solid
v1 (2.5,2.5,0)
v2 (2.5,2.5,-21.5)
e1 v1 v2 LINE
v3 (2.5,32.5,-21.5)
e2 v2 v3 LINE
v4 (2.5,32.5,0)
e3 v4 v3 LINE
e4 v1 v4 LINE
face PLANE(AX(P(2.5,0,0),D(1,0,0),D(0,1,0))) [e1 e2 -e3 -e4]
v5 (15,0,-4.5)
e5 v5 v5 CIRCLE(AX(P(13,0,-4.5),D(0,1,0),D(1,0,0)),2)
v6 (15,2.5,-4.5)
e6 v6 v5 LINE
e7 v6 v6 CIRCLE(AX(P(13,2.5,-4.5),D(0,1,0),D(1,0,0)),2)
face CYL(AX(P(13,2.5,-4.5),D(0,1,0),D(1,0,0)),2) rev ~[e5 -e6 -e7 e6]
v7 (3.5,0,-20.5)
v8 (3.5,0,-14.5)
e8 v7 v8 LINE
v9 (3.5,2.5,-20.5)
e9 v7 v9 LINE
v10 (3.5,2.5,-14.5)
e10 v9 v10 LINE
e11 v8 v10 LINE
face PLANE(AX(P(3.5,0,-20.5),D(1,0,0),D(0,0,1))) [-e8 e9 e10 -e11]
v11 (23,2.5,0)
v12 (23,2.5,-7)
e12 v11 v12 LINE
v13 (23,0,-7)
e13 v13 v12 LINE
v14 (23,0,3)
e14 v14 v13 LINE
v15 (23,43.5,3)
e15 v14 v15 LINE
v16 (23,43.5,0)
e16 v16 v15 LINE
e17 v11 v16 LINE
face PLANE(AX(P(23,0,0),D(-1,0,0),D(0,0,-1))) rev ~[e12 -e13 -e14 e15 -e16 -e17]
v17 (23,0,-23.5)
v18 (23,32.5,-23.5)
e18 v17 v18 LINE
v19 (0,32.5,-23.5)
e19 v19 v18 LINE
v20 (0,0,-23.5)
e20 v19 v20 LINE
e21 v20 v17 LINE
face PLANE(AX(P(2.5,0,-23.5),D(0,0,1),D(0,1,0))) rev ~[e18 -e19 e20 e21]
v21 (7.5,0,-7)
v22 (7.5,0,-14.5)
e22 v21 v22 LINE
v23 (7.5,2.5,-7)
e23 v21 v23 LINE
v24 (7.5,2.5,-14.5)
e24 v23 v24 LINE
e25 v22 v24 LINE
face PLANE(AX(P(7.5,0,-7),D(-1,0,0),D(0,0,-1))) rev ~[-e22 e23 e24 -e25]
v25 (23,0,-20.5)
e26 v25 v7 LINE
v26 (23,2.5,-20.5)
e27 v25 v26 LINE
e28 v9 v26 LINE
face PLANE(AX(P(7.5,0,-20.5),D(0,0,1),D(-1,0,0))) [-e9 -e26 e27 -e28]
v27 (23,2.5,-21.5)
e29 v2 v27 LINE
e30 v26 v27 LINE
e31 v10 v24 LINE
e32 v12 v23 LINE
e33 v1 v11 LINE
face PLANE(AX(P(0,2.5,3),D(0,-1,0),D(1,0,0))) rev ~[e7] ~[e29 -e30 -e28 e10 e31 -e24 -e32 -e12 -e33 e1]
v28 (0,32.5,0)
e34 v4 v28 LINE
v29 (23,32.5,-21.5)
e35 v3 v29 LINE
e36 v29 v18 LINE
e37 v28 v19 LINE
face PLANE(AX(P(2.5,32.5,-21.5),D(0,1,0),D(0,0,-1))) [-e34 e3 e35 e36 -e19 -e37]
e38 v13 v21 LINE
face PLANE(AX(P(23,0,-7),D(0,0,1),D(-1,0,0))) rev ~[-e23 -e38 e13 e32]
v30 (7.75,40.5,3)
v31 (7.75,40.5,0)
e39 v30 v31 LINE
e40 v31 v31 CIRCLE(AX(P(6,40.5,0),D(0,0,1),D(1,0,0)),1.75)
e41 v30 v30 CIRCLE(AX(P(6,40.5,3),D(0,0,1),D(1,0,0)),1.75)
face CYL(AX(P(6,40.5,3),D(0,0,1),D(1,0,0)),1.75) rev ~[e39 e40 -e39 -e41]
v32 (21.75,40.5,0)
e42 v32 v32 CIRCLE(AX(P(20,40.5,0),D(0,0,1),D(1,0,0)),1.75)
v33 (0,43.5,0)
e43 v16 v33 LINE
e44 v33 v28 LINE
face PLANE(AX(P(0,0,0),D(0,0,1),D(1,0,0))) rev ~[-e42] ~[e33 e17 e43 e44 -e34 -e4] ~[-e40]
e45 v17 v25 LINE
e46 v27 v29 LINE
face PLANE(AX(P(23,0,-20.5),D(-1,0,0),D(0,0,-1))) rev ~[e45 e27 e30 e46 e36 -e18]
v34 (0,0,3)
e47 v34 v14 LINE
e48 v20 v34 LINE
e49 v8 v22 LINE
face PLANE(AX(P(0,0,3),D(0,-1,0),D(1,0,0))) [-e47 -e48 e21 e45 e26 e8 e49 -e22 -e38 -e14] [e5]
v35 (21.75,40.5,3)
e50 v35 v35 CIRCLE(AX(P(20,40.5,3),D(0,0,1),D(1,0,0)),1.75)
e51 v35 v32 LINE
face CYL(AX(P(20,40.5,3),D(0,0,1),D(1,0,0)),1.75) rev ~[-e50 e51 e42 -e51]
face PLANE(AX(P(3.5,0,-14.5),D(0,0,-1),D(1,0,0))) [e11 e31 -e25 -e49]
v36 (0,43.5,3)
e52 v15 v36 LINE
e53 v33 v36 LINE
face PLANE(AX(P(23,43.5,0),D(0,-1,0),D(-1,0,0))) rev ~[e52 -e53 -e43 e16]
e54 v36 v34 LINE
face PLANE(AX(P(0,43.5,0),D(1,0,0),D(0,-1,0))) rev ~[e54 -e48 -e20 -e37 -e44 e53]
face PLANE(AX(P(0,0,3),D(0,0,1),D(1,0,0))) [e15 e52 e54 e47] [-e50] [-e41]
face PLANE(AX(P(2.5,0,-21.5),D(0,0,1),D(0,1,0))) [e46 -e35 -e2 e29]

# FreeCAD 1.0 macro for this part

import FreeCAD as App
import Part
import Sketcher


def add_polygon(sketch, points):
    """Adds a closed chain of lines whose ends are joined by coincident constraints."""
    first, n = sketch.GeometryCount, len(points)
    for a, b in zip(points, points[1:] + points[:1]):
        sketch.addGeometry(Part.LineSegment(App.Vector(*a, 0), App.Vector(*b, 0)), False)
    for i in range(n):
        sketch.addConstraint(Sketcher.Constraint("Coincident", first + i, 2, first + (i + 1) % n, 1))

doc = App.newDocument("Part")
params = doc.addObject("Spreadsheet::Sheet", "Params")
for row, (alias, value) in enumerate([
    ("sketch1_width", "23 mm"),
    ("sketch1_height", "43.5 mm"),
    ("pad1_length", "3 mm"),
    ("sketch2_width", "2.5 mm"),
    ("sketch2_height", "32.5 mm"),
    ("pad2_length", "23.5 mm"),
    ("sketch3_height", "2 mm"),
    ("sketch3_width", "32.5 mm"),
    ("pad3_length", "20.5 mm"),
    ("sketch4_height", "1 mm"),
    ("sketch4_height2", "7 mm"),
    ("sketch4_width", "20.5 mm"),
    ("sketch4_height3", "21.5 mm"),
    ("pad4_length", "2.5 mm"),
    ("sketch5_diameter", "4 mm"),
    ("pocket1_length", "2.5 mm"),
    ("sketch6_diameter", "3.5 mm"),
    ("pocket2_length", "3 mm"),
    ("sketch7_width", "4 mm"),
    ("sketch7_height", "6 mm"),
    ("pocket3_length", "2.5 mm"),
], start=1):
    params.set(f"A{row}", alias)
    params.set(f"B{row}", "=" + value)
    params.setAlias(f"B{row}", alias)

body = doc.addObject("PartDesign::Body", "Body")

# Sketch on XY plane
sketch1 = body.newObject("Sketcher::SketchObject", "Sketch")
sketch1.AttachmentSupport = (doc.getObject("XY_Plane"), [""])
sketch1.MapMode = "FlatFace"
add_polygon(sketch1, [(0, 44), (0, 0), (23, 0), (23, 44)])  # lines 0-3
sketch1.addConstraint([
    Sketcher.Constraint("Vertical", 0),
    Sketcher.Constraint("Horizontal", 1),
    Sketcher.Constraint("Vertical", 2),
    Sketcher.Constraint("Horizontal", 3),
    Sketcher.Constraint("Coincident", 0, 2, -1, 1),
    Sketcher.Constraint("DistanceX", 1, 1, 1, 2, 23.0),
    Sketcher.Constraint("DistanceY", 0, 2, 0, 1, 43.5),
])
sketch1.setExpression("Constraints[9]", "Params.sketch1_width")
sketch1.setExpression("Constraints[10]", "Params.sketch1_height")
pad1 = body.newObject("PartDesign::Pad", "Pad")
pad1.Profile = sketch1
pad1.setExpression("Length", "Params.pad1_length")

# Sketch on XY plane
sketch2 = body.newObject("Sketcher::SketchObject", "Sketch001")
sketch2.AttachmentSupport = (doc.getObject("XY_Plane"), [""])
sketch2.MapMode = "FlatFace"
add_polygon(sketch2, [(2.5, 0), (0, 0), (0, 32.5), (2.5, 32.5)])  # lines 0-3
sketch2.addConstraint([
    Sketcher.Constraint("Horizontal", 0),
    Sketcher.Constraint("Vertical", 1),
    Sketcher.Constraint("Horizontal", 2),
    Sketcher.Constraint("Vertical", 3),
    Sketcher.Constraint("Coincident", 0, 2, -1, 1),
    Sketcher.Constraint("DistanceX", 0, 2, 0, 1, 2.5),
    Sketcher.Constraint("DistanceY", 1, 1, 1, 2, 32.5),
])
sketch2.setExpression("Constraints[9]", "Params.sketch2_width")
sketch2.setExpression("Constraints[10]", "Params.sketch2_height")
pad2 = body.newObject("PartDesign::Pad", "Pad001")
pad2.Profile = sketch2
pad2.setExpression("Length", "Params.pad2_length")
pad2.Reversed = True

# Sketch on YZ plane
sketch3 = body.newObject("Sketcher::SketchObject", "Sketch002")
sketch3.AttachmentSupport = (doc.getObject("YZ_Plane"), [""])
sketch3.MapMode = "FlatFace"
sketch3.AttachmentOffset = App.Placement(App.Vector(0, 0, 2.5), App.Rotation())
add_polygon(sketch3, [(0, -21.5), (0, -23.5), (32.5, -23.5), (32.5, -21.5)])  # lines 0-3
sketch3.addConstraint([
    Sketcher.Constraint("Vertical", 0),
    Sketcher.Constraint("Horizontal", 1),
    Sketcher.Constraint("Vertical", 2),
    Sketcher.Constraint("Horizontal", 3),
    Sketcher.Constraint("PointOnObject", 0, 2, -2),
    Sketcher.Constraint("DistanceY", 0, 2, 0, 1, 2.0),
    Sketcher.Constraint("DistanceX", 1, 1, 1, 2, 32.5),
    Sketcher.Constraint("DistanceY", 0, 2, -1, 1, 23.5),
])
sketch3.setExpression("Constraints[9]", "Params.sketch3_height")
sketch3.setExpression("Constraints[10]", "Params.sketch3_width")
pad3 = body.newObject("PartDesign::Pad", "Pad002")
pad3.Profile = sketch3
pad3.setExpression("Length", "Params.pad3_length")

# Sketch on XZ plane
sketch4 = body.newObject("Sketcher::SketchObject", "Sketch003")
sketch4.AttachmentSupport = (doc.getObject("XZ_Plane"), [""])
sketch4.MapMode = "FlatFace"
add_polygon(sketch4, [(23, 0), (2.5, 0), (2.5, -21.5), (23, -21.5), (23, -20.5), (7.5, -20.5), (7.5, -7), (23, -7)])  # lines 0-7
sketch4.addConstraint([
    Sketcher.Constraint("Horizontal", 0),
    Sketcher.Constraint("Vertical", 1),
    Sketcher.Constraint("Horizontal", 2),
    Sketcher.Constraint("Vertical", 3),
    Sketcher.Constraint("Horizontal", 4),
    Sketcher.Constraint("Vertical", 5),
    Sketcher.Constraint("Horizontal", 6),
    Sketcher.Constraint("Vertical", 7),
    Sketcher.Constraint("PointOnObject", 0, 2, -1),
    Sketcher.Constraint("Vertical", 3, 2, 6, 2),
    Sketcher.Constraint("DistanceY", 3, 1, 3, 2, 1.0),
    Sketcher.Constraint("DistanceY", 7, 1, 7, 2, 7.0),
    Sketcher.Constraint("DistanceX", 1, 2, 4, 2, 5.0),
    Sketcher.Constraint("DistanceX", 0, 2, 0, 1, 20.5),
    Sketcher.Constraint("DistanceY", 1, 2, 1, 1, 21.5),
    Sketcher.Constraint("DistanceX", -1, 1, 2, 2, 23.0),
])
sketch4.setExpression("Constraints[18]", "Params.sketch4_height")
sketch4.setExpression("Constraints[19]", "Params.sketch4_height2")
sketch4.setExpression("Constraints[21]", "Params.sketch4_width")
sketch4.setExpression("Constraints[22]", "Params.sketch4_height3")
pad4 = body.newObject("PartDesign::Pad", "Pad003")
pad4.Profile = sketch4
pad4.setExpression("Length", "Params.pad4_length")
pad4.Reversed = True

# Sketch on XZ plane
sketch5 = body.newObject("Sketcher::SketchObject", "Sketch004")
sketch5.AttachmentSupport = (doc.getObject("XZ_Plane"), [""])
sketch5.MapMode = "FlatFace"
sketch5.AttachmentOffset = App.Placement(App.Vector(0, 0, -2.5), App.Rotation())
sketch5.addGeometry(Part.Circle(App.Vector(13, -4.5, 0), App.Vector(0, 0, 1), 2), False)
sketch5.addConstraint([
    Sketcher.Constraint("Diameter", 0, 4.0),
    Sketcher.Constraint("DistanceY", 0, 3, -1, 1, 4.5),
    Sketcher.Constraint("DistanceX", -1, 1, 0, 3, 13.0),
])
sketch5.setExpression("Constraints[0]", "Params.sketch5_diameter")
pocket1 = body.newObject("PartDesign::Pocket", "Pocket")
pocket1.Profile = sketch5
pocket1.setExpression("Length", "Params.pocket1_length")
pocket1.Reversed = True

# Sketch on XY plane
sketch6 = body.newObject("Sketcher::SketchObject", "Sketch005")
sketch6.AttachmentSupport = (doc.getObject("XY_Plane"), [""])
sketch6.MapMode = "FlatFace"
sketch6.AttachmentOffset = App.Placement(App.Vector(0, 0, 3), App.Rotation())
sketch6.addGeometry([
    Part.Circle(App.Vector(6, 40.5, 0), App.Vector(0, 0, 1), 1.8),
    Part.Circle(App.Vector(20, 40.5, 0), App.Vector(0, 0, 1), 1.8),
], False)
sketch6.addConstraint([
    Sketcher.Constraint("Equal", 0, 1),
    Sketcher.Constraint("Horizontal", 0, 3, 1, 3),
    Sketcher.Constraint("Diameter", 0, 3.5),
    Sketcher.Constraint("DistanceX", 0, 3, 1, 3, 14.0),
    Sketcher.Constraint("DistanceY", -1, 1, 0, 3, 40.5),
    Sketcher.Constraint("DistanceX", -1, 1, 0, 3, 6.0),
])
sketch6.setExpression("Constraints[2]", "Params.sketch6_diameter")
pocket2 = body.newObject("PartDesign::Pocket", "Pocket001")
pocket2.Profile = sketch6
pocket2.setExpression("Length", "Params.pocket2_length")

# Sketch on XZ plane
sketch7 = body.newObject("Sketcher::SketchObject", "Sketch006")
sketch7.AttachmentSupport = (doc.getObject("XZ_Plane"), [""])
sketch7.MapMode = "FlatFace"
add_polygon(sketch7, [(3.5, -20.5), (7.5, -20.5), (7.5, -14.5), (3.5, -14.5)])  # lines 0-3
sketch7.addConstraint([
    Sketcher.Constraint("Horizontal", 0),
    Sketcher.Constraint("Vertical", 1),
    Sketcher.Constraint("Horizontal", 2),
    Sketcher.Constraint("Vertical", 3),
    Sketcher.Constraint("DistanceX", 0, 1, 0, 2, 4.0),
    Sketcher.Constraint("DistanceY", 1, 1, 1, 2, 6.0),
    Sketcher.Constraint("DistanceX", -1, 1, 0, 2, 7.5),
    Sketcher.Constraint("DistanceY", 0, 2, -1, 1, 20.5),
])
sketch7.setExpression("Constraints[8]", "Params.sketch7_width")
sketch7.setExpression("Constraints[9]", "Params.sketch7_height")
pocket3 = body.newObject("PartDesign::Pocket", "Pocket002")
pocket3.Profile = sketch7
pocket3.setExpression("Length", "Params.pocket3_length")

doc.recompute()
